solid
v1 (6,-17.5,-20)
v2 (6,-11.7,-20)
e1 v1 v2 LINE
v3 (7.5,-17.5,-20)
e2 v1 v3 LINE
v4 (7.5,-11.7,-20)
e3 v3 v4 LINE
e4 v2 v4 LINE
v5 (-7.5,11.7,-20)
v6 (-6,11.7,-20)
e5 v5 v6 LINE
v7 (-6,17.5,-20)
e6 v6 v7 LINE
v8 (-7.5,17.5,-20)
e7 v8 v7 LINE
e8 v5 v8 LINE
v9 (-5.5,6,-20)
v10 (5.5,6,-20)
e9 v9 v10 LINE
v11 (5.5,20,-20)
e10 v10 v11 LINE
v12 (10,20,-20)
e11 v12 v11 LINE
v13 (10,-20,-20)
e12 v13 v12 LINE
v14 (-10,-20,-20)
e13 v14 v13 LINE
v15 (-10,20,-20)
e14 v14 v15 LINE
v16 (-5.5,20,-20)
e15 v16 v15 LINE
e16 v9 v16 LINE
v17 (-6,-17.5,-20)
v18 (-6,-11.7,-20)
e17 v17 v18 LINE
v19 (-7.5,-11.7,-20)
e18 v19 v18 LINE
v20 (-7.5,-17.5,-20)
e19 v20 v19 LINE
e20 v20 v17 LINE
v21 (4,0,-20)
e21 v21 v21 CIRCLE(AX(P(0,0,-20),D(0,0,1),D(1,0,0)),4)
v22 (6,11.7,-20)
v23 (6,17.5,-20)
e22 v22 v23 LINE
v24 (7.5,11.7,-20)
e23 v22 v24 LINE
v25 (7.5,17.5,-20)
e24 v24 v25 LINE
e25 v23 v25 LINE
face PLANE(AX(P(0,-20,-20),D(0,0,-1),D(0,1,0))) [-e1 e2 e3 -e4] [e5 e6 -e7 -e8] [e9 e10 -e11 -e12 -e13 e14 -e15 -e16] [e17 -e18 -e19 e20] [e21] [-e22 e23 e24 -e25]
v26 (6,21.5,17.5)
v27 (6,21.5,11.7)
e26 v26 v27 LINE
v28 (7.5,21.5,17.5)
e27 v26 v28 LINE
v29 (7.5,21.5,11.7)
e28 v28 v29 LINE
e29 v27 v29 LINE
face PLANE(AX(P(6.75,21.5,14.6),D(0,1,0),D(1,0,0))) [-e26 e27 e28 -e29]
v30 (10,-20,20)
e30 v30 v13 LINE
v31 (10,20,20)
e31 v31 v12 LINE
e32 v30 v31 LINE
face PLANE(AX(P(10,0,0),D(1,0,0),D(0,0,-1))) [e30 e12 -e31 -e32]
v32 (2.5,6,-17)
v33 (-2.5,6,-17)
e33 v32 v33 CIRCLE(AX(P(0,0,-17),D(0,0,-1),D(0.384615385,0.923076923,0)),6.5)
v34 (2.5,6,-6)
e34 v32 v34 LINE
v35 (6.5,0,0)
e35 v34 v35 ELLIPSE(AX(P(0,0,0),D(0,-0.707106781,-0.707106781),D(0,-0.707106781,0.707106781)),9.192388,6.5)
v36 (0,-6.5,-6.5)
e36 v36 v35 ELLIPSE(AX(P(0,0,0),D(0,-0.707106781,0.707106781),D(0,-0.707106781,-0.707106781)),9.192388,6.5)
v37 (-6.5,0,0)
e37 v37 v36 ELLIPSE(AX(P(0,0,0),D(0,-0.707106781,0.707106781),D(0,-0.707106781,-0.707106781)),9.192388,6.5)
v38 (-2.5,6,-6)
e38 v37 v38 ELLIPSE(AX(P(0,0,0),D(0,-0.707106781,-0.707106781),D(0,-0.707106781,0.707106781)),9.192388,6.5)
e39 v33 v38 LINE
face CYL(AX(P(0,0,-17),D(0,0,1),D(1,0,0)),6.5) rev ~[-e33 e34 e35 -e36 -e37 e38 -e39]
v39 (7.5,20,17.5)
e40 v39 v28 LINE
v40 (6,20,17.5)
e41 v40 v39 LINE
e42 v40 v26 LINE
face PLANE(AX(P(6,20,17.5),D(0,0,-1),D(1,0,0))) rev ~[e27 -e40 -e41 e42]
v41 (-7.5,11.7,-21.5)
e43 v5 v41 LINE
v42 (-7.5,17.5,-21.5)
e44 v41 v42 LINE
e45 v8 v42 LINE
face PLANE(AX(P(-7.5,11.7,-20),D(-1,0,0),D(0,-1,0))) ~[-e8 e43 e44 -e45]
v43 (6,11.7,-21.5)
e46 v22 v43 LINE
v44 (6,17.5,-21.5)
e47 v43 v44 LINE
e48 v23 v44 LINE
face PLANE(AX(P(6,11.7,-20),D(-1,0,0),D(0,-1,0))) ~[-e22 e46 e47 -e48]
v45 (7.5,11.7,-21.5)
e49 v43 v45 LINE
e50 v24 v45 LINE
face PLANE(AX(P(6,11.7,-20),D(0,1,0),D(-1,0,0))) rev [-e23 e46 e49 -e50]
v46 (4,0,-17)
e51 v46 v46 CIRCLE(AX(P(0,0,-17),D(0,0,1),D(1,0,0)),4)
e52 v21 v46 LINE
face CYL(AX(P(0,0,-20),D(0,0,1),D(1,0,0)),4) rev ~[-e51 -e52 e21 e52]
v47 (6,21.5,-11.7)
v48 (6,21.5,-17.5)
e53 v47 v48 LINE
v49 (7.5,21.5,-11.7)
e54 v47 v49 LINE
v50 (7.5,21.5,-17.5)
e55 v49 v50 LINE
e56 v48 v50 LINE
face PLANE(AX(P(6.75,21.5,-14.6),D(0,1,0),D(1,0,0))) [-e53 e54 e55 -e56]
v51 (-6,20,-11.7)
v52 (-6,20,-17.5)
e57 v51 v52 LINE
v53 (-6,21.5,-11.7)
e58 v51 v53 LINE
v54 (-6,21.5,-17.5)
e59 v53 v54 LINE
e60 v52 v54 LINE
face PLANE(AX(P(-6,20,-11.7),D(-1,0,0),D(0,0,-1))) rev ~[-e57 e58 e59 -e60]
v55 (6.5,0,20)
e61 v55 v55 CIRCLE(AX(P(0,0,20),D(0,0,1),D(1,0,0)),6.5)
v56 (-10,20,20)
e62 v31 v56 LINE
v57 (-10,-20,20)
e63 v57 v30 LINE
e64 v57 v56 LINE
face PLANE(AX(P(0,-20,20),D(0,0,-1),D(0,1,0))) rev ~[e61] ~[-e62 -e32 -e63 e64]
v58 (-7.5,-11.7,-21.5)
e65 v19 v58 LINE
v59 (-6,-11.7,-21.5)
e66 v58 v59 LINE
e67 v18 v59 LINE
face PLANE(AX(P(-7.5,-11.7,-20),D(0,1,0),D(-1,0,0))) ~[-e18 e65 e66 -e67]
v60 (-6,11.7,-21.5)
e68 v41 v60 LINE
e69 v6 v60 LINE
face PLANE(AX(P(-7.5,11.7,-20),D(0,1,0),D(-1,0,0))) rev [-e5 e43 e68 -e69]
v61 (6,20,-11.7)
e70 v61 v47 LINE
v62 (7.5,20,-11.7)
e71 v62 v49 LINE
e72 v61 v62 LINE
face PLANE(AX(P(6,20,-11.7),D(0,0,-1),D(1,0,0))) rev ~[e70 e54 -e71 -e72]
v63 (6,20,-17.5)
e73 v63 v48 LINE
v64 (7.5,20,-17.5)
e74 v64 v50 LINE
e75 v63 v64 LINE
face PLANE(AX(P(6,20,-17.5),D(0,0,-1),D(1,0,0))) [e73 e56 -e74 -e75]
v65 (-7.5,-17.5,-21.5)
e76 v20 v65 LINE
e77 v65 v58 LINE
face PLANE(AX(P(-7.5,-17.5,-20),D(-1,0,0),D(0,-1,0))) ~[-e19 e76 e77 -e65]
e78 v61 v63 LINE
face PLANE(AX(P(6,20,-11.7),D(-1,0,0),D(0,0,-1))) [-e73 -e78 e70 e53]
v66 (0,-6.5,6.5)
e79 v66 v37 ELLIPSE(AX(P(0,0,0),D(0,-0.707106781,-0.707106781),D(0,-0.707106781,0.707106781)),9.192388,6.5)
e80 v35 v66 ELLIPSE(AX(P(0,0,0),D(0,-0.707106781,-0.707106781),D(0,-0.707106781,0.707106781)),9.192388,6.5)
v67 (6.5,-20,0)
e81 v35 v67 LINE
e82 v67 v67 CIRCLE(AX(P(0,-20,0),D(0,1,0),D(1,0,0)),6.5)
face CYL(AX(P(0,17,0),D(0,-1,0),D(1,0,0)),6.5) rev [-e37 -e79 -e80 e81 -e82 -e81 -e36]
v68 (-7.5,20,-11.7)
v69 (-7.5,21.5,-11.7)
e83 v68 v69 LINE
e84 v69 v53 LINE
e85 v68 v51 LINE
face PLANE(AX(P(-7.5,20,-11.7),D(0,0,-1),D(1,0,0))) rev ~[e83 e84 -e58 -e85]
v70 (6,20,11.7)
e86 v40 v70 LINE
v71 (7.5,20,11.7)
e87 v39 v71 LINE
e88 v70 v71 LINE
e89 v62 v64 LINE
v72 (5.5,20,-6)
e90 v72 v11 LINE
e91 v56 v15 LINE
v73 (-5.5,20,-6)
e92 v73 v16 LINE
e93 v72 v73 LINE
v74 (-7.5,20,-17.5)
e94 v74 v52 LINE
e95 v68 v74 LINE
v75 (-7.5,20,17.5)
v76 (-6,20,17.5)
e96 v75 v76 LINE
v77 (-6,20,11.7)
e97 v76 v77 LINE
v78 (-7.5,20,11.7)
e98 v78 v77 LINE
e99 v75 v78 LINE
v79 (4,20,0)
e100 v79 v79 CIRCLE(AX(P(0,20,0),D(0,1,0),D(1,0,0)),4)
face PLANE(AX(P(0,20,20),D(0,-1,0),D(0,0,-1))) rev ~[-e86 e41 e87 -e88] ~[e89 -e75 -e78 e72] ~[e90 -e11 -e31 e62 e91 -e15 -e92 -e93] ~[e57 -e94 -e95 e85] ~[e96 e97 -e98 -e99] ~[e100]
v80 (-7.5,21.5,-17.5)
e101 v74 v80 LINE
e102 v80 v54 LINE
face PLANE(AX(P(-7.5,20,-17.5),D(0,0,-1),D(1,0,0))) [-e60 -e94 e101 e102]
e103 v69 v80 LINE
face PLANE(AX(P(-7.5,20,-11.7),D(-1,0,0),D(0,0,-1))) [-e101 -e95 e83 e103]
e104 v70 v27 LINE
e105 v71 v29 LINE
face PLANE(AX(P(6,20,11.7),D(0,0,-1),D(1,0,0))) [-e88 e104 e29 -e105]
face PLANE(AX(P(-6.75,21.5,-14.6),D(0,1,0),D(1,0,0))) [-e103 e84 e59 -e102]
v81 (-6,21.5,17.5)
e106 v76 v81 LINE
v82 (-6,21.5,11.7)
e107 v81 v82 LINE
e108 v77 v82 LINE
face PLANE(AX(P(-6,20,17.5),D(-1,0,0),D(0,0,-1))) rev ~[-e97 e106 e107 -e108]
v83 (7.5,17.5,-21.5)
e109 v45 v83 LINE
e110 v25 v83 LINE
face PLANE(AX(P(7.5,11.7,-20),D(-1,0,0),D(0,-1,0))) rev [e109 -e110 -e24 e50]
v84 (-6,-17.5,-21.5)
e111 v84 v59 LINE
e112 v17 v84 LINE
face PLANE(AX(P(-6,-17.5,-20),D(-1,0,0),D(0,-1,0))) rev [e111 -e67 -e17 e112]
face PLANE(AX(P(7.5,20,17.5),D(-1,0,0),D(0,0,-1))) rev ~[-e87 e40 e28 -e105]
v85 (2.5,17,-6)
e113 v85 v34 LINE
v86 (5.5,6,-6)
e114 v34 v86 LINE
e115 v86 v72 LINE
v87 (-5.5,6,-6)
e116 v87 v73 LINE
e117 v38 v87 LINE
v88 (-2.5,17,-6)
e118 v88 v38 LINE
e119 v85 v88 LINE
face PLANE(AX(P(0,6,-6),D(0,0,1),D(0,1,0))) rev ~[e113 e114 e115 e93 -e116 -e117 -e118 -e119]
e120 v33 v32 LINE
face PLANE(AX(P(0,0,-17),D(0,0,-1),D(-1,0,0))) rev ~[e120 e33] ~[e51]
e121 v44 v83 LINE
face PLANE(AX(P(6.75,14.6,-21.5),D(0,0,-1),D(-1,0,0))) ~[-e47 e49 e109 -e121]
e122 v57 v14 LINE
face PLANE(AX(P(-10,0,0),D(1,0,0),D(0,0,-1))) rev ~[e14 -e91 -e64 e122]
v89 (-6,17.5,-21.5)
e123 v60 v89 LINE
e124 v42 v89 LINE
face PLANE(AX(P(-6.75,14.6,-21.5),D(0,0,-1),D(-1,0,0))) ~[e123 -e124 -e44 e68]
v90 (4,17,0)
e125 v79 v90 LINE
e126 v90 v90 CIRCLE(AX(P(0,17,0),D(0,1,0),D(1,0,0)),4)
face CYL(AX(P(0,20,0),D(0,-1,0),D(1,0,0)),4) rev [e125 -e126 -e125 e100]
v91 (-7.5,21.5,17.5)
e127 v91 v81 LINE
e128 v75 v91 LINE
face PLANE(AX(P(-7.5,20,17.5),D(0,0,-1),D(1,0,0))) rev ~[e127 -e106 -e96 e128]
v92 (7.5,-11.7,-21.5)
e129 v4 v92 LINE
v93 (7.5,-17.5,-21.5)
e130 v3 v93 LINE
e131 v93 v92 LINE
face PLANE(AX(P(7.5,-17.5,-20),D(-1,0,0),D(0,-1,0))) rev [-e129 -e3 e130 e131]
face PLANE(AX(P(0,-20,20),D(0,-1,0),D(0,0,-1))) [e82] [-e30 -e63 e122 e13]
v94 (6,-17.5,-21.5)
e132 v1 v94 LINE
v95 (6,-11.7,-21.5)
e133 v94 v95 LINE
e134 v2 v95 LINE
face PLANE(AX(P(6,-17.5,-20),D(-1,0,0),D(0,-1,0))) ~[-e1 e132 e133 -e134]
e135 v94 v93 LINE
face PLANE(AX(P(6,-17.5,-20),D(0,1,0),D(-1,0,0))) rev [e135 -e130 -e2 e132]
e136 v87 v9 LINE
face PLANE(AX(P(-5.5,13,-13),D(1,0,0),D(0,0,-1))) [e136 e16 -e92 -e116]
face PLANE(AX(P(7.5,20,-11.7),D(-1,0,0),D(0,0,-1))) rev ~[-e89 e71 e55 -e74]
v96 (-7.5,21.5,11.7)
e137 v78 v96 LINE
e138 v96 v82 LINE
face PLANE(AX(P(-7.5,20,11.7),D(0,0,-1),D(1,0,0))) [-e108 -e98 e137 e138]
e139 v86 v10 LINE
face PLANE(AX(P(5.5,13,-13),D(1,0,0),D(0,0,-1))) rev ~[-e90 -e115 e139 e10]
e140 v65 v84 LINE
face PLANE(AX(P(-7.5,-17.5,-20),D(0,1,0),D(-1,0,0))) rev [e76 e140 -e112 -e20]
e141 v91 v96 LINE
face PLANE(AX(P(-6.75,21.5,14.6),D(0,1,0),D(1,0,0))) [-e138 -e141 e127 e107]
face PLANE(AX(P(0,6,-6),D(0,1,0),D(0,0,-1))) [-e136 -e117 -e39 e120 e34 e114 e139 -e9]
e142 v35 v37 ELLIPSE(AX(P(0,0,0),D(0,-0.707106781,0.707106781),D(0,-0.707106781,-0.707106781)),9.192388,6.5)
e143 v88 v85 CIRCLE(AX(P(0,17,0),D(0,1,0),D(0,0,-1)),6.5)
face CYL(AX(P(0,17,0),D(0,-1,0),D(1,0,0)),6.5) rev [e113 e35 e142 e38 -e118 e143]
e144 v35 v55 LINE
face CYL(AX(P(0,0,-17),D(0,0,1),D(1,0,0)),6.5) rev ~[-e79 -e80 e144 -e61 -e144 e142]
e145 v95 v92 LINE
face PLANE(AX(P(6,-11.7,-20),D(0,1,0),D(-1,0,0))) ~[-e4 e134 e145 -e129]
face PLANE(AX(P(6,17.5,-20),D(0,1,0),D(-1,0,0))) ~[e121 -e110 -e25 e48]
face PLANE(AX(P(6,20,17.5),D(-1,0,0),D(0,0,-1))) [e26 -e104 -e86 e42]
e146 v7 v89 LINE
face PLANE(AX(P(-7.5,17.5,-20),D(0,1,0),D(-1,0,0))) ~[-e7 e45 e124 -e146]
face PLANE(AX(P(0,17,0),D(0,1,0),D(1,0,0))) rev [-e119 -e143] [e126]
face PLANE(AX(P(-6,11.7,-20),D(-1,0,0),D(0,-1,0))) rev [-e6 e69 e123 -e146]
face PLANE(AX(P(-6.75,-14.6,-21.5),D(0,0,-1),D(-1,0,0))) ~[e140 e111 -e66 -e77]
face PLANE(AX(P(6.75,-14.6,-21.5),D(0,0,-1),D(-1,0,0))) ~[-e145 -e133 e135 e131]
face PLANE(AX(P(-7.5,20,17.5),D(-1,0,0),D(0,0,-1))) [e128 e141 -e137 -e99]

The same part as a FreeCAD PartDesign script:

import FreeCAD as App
import Part
import Sketcher
from FreeCAD import Vector


def add_polygon(sketch, points):
    """Adds a closed chain of lines whose ends are joined by coincident constraints."""
    first, n = sketch.GeometryCount, len(points)
    for a, b in zip(points, points[1:] + points[:1]):
        sketch.addGeometry(Part.LineSegment(App.Vector(*a, 0), App.Vector(*b, 0)), False)
    for i in range(n):
        sketch.addConstraint(Sketcher.Constraint("Coincident", first + i, 2, first + (i + 1) % n, 1))

doc = App.newDocument("Part")
params = doc.addObject("Spreadsheet::Sheet", "Params")
for row, (alias, value) in enumerate([
    ("sketch1_width", "40 mm"),
    ("pad1_length", "20 mm"),
    ("sketch2_width", "4 mm"),
    ("sketch2_height", "3 mm"),
    ("sketch2_height2", "37 mm"),
    ("sketch2_width2", "2.5 mm"),
    ("groove_angle", "360 deg"),
    ("sketch3_width", "1.5 mm"),
    ("sketch3_height", "5.8 mm"),
    ("pad2_length", "1.5 mm"),
    ("sketch4_width", "14 mm"),
    ("pocket1_length", "5.5 mm"),
    ("pocket1_length2", "5.5 mm"),
], start=1):
    params.set(f"A{row}", alias)
    params.set(f"B{row}", "=" + value)
    params.setAlias(f"B{row}", alias)

body = doc.addObject("PartDesign::Body", "Body")

# Sketch on YZ plane
sketch1 = doc.addObject("Sketcher::SketchObject", "Sketch")
body.addObject(sketch1)
sketch1.AttachmentSupport = (doc.YZ_Plane, [""])
sketch1.MapMode = "FlatFace"
add_polygon(sketch1, [(20, 20), (-20, 20), (-20, -20), (20, -20)])  # lines 0-3
sketch1.addConstraint([
    Sketcher.Constraint("Horizontal", 0),
    Sketcher.Constraint("Vertical", 1),
    Sketcher.Constraint("Horizontal", 2),
    Sketcher.Constraint("Vertical", 3),
    Sketcher.Constraint("Symmetric", 0, 2, 2, 2, -1, 1),
    Sketcher.Constraint("Equal", 2, 1),
    Sketcher.Constraint("DistanceX", 0, 2, 0, 1, 40.0),
])
sketch1.setExpression("Constraints[10]", "Params.sketch1_width")
pad1 = doc.addObject("PartDesign::Pad", "Pad")
body.addObject(pad1)
pad1.Profile = sketch1
pad1.setExpression("Length", "Params.pad1_length")
pad1.Midplane = True

# Sketch on XY plane
sketch2 = doc.addObject("Sketcher::SketchObject", "Sketch001")
body.addObject(sketch2)
sketch2.AttachmentSupport = (doc.XY_Plane, [""])
sketch2.MapMode = "FlatFace"
add_polygon(sketch2, [(-4, 20), (-4, 17), (-6.5, 17), (-6.5, -20), (0, -20), (0, 20)])  # lines 0-5
sketch2.addConstraint([
    Sketcher.Constraint("Vertical", 0),
    Sketcher.Constraint("Horizontal", 1),
    Sketcher.Constraint("Vertical", 2),
    Sketcher.Constraint("Horizontal", 3),
    Sketcher.Constraint("Vertical", 4),
    Sketcher.Constraint("Horizontal", 5),
    Sketcher.Constraint("Symmetric", 3, 2, 4, 2, -1, 1),
    Sketcher.Constraint("DistanceX", 5, 2, 5, 1, 4.0),
    Sketcher.Constraint("DistanceY", 0, 2, 0, 1, 3.0),
    Sketcher.Constraint("DistanceY", 2, 2, 2, 1, 37.0),
    Sketcher.Constraint("DistanceX", 1, 2, 1, 1, 2.5),
])
sketch2.setExpression("Constraints[13]", "Params.sketch2_width")
sketch2.setExpression("Constraints[14]", "Params.sketch2_height")
sketch2.setExpression("Constraints[15]", "Params.sketch2_height2")
sketch2.setExpression("Constraints[16]", "Params.sketch2_width2")
groove = doc.addObject("PartDesign::Groove", "Groove")
body.addObject(groove)
groove.Profile = sketch2
groove.ReferenceAxis = (sketch2, ["V_Axis"])
groove.setExpression("Angle", "Params.groove_angle")

# Sketch on XZ plane
sketch3 = doc.addObject("Sketcher::SketchObject", "Sketch002")
body.addObject(sketch3)
sketch3.AttachmentSupport = (doc.XZ_Plane, [""])
sketch3.MapMode = "FlatFace"
sketch3.AttachmentOffset = App.Placement(Vector(0, 0, -20), App.Rotation())
add_polygon(sketch3, [(-7.5, 11.7), (-7.5, 17.5), (-6, 17.5), (-6, 11.7)])  # lines 0-3
add_polygon(sketch3, [(-7.5, -17.5), (-7.5, -11.7), (-6, -11.7), (-6, -17.5)])  # lines 4-7
add_polygon(sketch3, [(6, -17.5), (6, -11.7), (7.5, -11.7), (7.5, -17.5)])  # lines 8-11
add_polygon(sketch3, [(6, 11.7), (6, 17.5), (7.5, 17.5), (7.5, 11.7)])  # lines 12-15
sketch3.addConstraint([
    Sketcher.Constraint("Vertical", 0),
    Sketcher.Constraint("Horizontal", 1),
    Sketcher.Constraint("Vertical", 2),
    Sketcher.Constraint("Horizontal", 3),
    Sketcher.Constraint("Vertical", 4),
    Sketcher.Constraint("Horizontal", 5),
    Sketcher.Constraint("Vertical", 6),
    Sketcher.Constraint("Horizontal", 7),
    Sketcher.Constraint("Vertical", 8),
    Sketcher.Constraint("Horizontal", 9),
    Sketcher.Constraint("Vertical", 10),
    Sketcher.Constraint("Horizontal", 11),
    Sketcher.Constraint("Vertical", 12),
    Sketcher.Constraint("Horizontal", 13),
    Sketcher.Constraint("Vertical", 14),
    Sketcher.Constraint("Horizontal", 15),
    Sketcher.Constraint("Symmetric", 2, 2, 8, 2, -1, 1),
    Sketcher.Constraint("Symmetric", 0, 2, 10, 2, -1, 1),
    Sketcher.Constraint("Symmetric", 6, 2, 12, 2, -1, 1),
    Sketcher.Constraint("Symmetric", 4, 2, 14, 2, -1, 1),
    Sketcher.Constraint("Symmetric", 5, 2, 8, 2, -2),
    Sketcher.Constraint("Symmetric", 7, 2, 10, 2, -2),
    Sketcher.Constraint("DistanceX", 1, 1, 1, 2, 1.5),
    Sketcher.Constraint("DistanceY", 0, 1, 0, 2, 5.8),
    Sketcher.Constraint("DistanceX", 1, 2, -1, 1, 6.0),
    Sketcher.Constraint("DistanceY", 6, 2, 1, 2, 35.0),
])
sketch3.setExpression("Constraints[38]", "Params.sketch3_width")
sketch3.setExpression("Constraints[39]", "Params.sketch3_height")
pad2 = doc.addObject("PartDesign::Pad", "Pad001")
body.addObject(pad2)
pad2.Profile = sketch3
pad2.setExpression("Length", "Params.pad2_length")
pad2.Reversed = True
doc.recompute()

datumplane = doc.addObject("PartDesign::Plane", "DatumPlane")
body.addObject(datumplane)
datumplane.Placement = App.Placement(Vector(0, 0, 0), App.Rotation(Vector(0, 0.707106781, -0.707106781), Vector(-1, 0, 0), Vector(0, 0.707106781, 0.707106781), "ZXY"))
mirrored = doc.addObject("PartDesign::Mirrored", "Mirrored")
body.addObject(mirrored)
mirrored.Originals = [groove, pad2]
mirrored.MirrorPlane = (datumplane, [""])
body.Tip = mirrored

# Sketch on YZ plane
sketch4 = doc.addObject("Sketcher::SketchObject", "Sketch003")
body.addObject(sketch4)
sketch4.AttachmentSupport = (doc.YZ_Plane, [""])
sketch4.MapMode = "FlatFace"
add_polygon(sketch4, [(20, -6), (6, -6), (6, -20), (20, -20)])  # lines 0-3
sketch4.addConstraint([
    Sketcher.Constraint("Horizontal", 0),
    Sketcher.Constraint("Vertical", 1),
    Sketcher.Constraint("Horizontal", 2),
    Sketcher.Constraint("Vertical", 3),
    Sketcher.Constraint("Equal", 2, 1),
    Sketcher.Constraint("DistanceX", 0, 2, 0, 1, 14.0),
    Sketcher.Constraint("DistanceX", -1, 1, 0, 2, 6.0),
    Sketcher.Constraint("DistanceY", 0, 2, -1, 1, 6.0),
])
sketch4.setExpression("Constraints[9]", "Params.sketch4_width")
pocket1 = doc.addObject("PartDesign::Pocket", "Pocket")
body.addObject(pocket1)
pocket1.Profile = sketch4
pocket1.Type = "TwoLengths"
pocket1.setExpression("Length", "Params.pocket1_length")
pocket1.setExpression("Length2", "Params.pocket1_length2")
pocket1.Reversed = True

doc.recompute()
